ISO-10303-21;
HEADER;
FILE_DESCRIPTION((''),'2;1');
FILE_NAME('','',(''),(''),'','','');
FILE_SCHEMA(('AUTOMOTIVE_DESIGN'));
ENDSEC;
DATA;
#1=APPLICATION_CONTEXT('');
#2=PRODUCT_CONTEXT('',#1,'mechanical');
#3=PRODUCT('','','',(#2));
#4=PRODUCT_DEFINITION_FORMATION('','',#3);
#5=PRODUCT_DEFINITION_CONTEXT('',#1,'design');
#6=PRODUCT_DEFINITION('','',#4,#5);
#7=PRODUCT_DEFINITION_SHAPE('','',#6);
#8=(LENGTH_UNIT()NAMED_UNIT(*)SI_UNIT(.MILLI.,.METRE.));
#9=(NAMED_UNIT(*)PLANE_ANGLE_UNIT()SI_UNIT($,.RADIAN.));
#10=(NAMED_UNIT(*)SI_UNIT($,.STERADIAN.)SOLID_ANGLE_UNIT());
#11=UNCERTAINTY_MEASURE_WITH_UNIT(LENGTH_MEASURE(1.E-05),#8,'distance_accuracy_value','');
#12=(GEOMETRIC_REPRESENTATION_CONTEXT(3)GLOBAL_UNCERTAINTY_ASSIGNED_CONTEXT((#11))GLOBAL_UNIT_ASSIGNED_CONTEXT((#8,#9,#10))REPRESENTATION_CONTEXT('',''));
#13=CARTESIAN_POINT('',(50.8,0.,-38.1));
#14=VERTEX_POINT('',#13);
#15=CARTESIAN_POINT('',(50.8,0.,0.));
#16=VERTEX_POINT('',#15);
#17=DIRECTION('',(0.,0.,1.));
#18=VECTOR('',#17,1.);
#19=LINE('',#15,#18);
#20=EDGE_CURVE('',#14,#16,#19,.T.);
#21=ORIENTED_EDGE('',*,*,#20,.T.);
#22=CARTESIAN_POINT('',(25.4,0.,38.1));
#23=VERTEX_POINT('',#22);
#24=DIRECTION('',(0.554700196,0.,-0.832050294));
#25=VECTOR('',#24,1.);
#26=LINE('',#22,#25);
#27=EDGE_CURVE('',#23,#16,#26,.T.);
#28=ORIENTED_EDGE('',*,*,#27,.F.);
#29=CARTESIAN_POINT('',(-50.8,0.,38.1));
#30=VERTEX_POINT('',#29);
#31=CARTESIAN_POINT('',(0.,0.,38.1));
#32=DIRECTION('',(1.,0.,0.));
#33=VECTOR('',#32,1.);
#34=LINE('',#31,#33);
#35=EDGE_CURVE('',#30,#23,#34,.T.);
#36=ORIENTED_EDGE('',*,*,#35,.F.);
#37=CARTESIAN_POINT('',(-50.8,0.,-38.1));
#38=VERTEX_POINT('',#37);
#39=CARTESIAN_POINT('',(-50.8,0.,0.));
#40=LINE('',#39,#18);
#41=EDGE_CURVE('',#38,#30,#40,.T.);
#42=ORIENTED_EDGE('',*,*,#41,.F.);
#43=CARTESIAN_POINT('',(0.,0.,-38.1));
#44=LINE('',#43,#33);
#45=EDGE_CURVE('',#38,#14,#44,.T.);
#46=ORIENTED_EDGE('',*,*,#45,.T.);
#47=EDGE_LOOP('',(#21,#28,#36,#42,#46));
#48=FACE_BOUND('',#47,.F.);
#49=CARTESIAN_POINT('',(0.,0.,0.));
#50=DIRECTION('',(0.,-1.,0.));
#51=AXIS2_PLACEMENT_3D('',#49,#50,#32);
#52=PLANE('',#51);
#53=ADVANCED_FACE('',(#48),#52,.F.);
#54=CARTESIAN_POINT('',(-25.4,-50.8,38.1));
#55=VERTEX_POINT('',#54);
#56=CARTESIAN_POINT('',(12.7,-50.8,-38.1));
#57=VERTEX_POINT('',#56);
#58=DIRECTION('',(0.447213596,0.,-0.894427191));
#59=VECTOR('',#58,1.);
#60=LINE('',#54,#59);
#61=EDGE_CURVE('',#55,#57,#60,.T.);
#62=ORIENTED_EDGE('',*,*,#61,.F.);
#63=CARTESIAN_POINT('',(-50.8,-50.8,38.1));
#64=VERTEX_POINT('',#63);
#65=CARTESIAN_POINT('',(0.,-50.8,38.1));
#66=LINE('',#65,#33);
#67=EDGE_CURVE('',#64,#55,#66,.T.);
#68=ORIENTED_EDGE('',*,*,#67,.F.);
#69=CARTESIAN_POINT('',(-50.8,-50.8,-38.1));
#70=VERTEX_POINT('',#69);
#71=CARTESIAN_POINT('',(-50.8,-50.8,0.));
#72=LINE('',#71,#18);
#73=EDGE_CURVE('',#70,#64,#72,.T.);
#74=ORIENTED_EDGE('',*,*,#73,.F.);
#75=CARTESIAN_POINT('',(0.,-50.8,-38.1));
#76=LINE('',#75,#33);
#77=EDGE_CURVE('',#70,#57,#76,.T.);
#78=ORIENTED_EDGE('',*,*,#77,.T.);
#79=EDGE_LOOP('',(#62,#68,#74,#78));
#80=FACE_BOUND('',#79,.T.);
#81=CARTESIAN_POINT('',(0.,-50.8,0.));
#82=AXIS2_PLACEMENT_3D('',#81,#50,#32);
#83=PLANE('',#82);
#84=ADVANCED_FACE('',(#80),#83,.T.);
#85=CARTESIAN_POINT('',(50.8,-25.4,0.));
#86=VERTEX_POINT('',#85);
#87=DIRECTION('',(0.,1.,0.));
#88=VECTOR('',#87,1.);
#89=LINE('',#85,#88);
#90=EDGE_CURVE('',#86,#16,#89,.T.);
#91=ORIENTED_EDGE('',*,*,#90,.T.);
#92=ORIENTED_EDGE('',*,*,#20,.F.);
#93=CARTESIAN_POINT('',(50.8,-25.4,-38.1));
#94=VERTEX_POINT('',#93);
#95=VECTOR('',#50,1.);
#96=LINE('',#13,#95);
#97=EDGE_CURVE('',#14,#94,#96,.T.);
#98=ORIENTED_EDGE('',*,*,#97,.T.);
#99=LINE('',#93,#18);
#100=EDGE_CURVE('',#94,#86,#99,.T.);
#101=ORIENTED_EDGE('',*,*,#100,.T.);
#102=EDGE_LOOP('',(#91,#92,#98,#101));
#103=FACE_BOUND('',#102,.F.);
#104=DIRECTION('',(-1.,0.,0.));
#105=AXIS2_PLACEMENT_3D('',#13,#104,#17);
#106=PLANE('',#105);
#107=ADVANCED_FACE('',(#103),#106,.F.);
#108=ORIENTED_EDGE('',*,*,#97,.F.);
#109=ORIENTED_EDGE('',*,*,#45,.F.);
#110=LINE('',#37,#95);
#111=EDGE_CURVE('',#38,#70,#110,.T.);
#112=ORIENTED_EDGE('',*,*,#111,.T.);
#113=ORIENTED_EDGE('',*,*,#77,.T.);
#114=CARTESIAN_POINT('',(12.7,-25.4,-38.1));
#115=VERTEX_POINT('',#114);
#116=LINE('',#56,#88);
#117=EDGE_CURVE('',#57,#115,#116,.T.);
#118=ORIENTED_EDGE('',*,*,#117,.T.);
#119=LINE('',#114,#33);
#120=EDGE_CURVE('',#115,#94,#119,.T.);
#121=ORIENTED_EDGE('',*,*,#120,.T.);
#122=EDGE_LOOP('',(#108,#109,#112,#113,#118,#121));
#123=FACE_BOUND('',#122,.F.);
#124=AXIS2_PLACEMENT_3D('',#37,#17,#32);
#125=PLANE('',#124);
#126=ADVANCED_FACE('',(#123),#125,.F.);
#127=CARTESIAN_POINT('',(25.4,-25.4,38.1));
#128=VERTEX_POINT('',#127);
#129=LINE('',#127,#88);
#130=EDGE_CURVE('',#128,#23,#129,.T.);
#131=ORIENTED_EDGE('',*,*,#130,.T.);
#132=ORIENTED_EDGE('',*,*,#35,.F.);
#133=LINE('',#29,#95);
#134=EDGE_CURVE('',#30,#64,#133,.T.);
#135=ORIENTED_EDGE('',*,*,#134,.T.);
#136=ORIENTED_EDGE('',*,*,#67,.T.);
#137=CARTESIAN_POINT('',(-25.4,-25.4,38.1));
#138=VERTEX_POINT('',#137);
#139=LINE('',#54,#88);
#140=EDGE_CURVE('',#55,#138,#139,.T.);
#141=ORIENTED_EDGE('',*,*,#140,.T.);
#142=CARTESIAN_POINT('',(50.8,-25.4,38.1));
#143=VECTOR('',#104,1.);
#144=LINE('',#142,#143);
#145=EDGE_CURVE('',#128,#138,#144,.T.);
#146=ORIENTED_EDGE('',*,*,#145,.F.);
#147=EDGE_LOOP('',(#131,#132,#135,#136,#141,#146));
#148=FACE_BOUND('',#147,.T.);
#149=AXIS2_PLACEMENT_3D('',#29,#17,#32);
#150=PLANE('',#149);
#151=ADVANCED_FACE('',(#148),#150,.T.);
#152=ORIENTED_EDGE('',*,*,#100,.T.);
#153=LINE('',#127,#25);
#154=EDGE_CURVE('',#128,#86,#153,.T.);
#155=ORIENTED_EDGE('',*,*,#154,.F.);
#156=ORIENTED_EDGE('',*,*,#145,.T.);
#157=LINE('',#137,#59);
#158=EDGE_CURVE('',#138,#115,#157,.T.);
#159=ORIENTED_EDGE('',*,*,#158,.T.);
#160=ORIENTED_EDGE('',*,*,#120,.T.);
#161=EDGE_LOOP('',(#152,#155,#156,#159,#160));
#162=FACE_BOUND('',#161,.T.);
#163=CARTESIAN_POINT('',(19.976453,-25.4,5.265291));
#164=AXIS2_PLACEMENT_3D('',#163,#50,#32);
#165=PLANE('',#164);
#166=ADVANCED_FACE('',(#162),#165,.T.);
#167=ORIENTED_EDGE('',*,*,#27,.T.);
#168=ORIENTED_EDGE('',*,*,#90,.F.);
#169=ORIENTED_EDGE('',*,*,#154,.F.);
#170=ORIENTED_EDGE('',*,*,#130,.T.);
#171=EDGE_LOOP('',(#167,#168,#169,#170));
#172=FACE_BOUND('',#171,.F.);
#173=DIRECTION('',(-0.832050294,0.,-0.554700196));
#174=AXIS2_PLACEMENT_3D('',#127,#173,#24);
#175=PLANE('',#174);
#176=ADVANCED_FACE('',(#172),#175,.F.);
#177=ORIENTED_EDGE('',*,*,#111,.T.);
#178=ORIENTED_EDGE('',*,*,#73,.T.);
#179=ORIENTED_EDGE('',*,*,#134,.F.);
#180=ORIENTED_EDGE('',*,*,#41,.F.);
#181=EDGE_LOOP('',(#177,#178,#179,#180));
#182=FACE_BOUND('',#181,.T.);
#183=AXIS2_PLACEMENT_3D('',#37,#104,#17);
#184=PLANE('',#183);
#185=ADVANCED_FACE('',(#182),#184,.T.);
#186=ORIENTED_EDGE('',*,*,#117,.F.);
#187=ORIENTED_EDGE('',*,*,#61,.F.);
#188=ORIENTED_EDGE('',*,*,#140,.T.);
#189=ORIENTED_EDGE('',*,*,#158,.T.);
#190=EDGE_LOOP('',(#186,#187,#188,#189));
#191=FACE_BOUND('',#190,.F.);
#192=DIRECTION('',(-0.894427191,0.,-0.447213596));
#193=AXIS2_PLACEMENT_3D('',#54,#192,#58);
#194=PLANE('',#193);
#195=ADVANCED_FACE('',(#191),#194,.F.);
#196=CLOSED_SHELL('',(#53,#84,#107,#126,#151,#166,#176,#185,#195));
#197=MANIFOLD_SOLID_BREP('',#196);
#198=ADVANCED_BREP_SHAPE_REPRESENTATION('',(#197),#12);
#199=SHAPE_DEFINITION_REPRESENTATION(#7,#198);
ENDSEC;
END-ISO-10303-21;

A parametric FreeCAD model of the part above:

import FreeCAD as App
import Part
import Sketcher
Q = App.Units.Quantity


def add_polygon(sketch, points):
    """Adds a closed chain of lines whose ends are joined by coincident constraints."""
    first, n = sketch.GeometryCount, len(points)
    for a, b in zip(points, points[1:] + points[:1]):
        sketch.addGeometry(Part.LineSegment(App.Vector(*a, 0), App.Vector(*b, 0)), False)
    for i in range(n):
        sketch.addConstraint(Sketcher.Constraint("Coincident", first + i, 2, first + (i + 1) % n, 1))

doc = App.newDocument("Part")
body = doc.addObject("PartDesign::Body", "Body")

# Sketch on XZ plane
sketch1 = body.newObject("Sketcher::SketchObject", "Sketch")
sketch1.AttachmentSupport = (doc.getObject("XZ_Plane"), [""])
sketch1.MapMode = "FlatFace"
add_polygon(sketch1, [(-51, 38), (-51, -38), (51, -38), (51, 38)])  # lines 0-3
sketch1.addConstraint([
    Sketcher.Constraint("Vertical", 0),
    Sketcher.Constraint("Horizontal", 1),
    Sketcher.Constraint("Vertical", 2),
    Sketcher.Constraint("Horizontal", 3),
    Sketcher.Constraint("Symmetric", 0, 2, 2, 2, -1, 1),
    Sketcher.Constraint("DistanceX", 1, 1, 1, 2, Q("4 in")),
    Sketcher.Constraint("DistanceY", 0, 2, 0, 1, Q("3 in")),
])
pad1 = body.newObject("PartDesign::Pad", "Pad")
pad1.Profile = sketch1
pad1.Length = Q("2 in")

# Sketch on XZ plane
sketch2 = body.newObject("Sketcher::SketchObject", "Sketch001")
sketch2.AttachmentSupport = (doc.getObject("XZ_Plane"), [""])
sketch2.MapMode = "FlatFace"
sketch2.AttachmentOffset = App.Placement(App.Vector(0, 0, 2 * 25.4), App.Rotation())
add_polygon(sketch2, [(51, 38), (-25, 38), (13, -38), (51, -38)])  # lines 0-3
sketch2.addConstraint([
    Sketcher.Constraint("Horizontal", 0),
    Sketcher.Constraint("Horizontal", 2),
    Sketcher.Constraint("Vertical", 3),
    Sketcher.Constraint("Equal", 0, 3),
    Sketcher.Constraint("DistanceX", 0, 2, 0, 1, Q("3 in")),
    Sketcher.Constraint("DistanceX", 2, 1, 2, 2, Q("1.5 in")),
    Sketcher.Constraint("DistanceX", 0, 2, -1, 1, Q("1 in")),
    Sketcher.Constraint("DistanceY", -1, 1, 0, 2, Q("1.5 in")),
])
pocket1 = body.newObject("PartDesign::Pocket", "Pocket")
pocket1.Profile = sketch2
pocket1.Length = Q("1 in")

# Sketch on XZ plane
sketch3 = body.newObject("Sketcher::SketchObject", "Sketch002")
sketch3.AttachmentSupport = (doc.getObject("XZ_Plane"), [""])
sketch3.MapMode = "FlatFace"
sketch3.AttachmentOffset = App.Placement(App.Vector(0, 0, 1 * 25.4), App.Rotation())
add_polygon(sketch3, [(51, 38), (25, 38), (51, 0)])  # lines 0-2
sketch3.addConstraint([
    Sketcher.Constraint("Horizontal", 0),
    Sketcher.Constraint("Vertical", 2),
    Sketcher.Constraint("PointOnObject", 1, 2, -1),
    Sketcher.Constraint("DistanceX", 0, 2, 0, 1, Q("1 in")),
    Sketcher.Constraint("DistanceY", 2, 1, 2, 2, Q("1.5 in")),
    Sketcher.Constraint("DistanceX", -1, 1, 0, 2, Q("1 in")),
])
pocket2 = body.newObject("PartDesign::Pocket", "Pocket001")
pocket2.Profile = sketch3
pocket2.Length = Q("1 in")

doc.recompute()
